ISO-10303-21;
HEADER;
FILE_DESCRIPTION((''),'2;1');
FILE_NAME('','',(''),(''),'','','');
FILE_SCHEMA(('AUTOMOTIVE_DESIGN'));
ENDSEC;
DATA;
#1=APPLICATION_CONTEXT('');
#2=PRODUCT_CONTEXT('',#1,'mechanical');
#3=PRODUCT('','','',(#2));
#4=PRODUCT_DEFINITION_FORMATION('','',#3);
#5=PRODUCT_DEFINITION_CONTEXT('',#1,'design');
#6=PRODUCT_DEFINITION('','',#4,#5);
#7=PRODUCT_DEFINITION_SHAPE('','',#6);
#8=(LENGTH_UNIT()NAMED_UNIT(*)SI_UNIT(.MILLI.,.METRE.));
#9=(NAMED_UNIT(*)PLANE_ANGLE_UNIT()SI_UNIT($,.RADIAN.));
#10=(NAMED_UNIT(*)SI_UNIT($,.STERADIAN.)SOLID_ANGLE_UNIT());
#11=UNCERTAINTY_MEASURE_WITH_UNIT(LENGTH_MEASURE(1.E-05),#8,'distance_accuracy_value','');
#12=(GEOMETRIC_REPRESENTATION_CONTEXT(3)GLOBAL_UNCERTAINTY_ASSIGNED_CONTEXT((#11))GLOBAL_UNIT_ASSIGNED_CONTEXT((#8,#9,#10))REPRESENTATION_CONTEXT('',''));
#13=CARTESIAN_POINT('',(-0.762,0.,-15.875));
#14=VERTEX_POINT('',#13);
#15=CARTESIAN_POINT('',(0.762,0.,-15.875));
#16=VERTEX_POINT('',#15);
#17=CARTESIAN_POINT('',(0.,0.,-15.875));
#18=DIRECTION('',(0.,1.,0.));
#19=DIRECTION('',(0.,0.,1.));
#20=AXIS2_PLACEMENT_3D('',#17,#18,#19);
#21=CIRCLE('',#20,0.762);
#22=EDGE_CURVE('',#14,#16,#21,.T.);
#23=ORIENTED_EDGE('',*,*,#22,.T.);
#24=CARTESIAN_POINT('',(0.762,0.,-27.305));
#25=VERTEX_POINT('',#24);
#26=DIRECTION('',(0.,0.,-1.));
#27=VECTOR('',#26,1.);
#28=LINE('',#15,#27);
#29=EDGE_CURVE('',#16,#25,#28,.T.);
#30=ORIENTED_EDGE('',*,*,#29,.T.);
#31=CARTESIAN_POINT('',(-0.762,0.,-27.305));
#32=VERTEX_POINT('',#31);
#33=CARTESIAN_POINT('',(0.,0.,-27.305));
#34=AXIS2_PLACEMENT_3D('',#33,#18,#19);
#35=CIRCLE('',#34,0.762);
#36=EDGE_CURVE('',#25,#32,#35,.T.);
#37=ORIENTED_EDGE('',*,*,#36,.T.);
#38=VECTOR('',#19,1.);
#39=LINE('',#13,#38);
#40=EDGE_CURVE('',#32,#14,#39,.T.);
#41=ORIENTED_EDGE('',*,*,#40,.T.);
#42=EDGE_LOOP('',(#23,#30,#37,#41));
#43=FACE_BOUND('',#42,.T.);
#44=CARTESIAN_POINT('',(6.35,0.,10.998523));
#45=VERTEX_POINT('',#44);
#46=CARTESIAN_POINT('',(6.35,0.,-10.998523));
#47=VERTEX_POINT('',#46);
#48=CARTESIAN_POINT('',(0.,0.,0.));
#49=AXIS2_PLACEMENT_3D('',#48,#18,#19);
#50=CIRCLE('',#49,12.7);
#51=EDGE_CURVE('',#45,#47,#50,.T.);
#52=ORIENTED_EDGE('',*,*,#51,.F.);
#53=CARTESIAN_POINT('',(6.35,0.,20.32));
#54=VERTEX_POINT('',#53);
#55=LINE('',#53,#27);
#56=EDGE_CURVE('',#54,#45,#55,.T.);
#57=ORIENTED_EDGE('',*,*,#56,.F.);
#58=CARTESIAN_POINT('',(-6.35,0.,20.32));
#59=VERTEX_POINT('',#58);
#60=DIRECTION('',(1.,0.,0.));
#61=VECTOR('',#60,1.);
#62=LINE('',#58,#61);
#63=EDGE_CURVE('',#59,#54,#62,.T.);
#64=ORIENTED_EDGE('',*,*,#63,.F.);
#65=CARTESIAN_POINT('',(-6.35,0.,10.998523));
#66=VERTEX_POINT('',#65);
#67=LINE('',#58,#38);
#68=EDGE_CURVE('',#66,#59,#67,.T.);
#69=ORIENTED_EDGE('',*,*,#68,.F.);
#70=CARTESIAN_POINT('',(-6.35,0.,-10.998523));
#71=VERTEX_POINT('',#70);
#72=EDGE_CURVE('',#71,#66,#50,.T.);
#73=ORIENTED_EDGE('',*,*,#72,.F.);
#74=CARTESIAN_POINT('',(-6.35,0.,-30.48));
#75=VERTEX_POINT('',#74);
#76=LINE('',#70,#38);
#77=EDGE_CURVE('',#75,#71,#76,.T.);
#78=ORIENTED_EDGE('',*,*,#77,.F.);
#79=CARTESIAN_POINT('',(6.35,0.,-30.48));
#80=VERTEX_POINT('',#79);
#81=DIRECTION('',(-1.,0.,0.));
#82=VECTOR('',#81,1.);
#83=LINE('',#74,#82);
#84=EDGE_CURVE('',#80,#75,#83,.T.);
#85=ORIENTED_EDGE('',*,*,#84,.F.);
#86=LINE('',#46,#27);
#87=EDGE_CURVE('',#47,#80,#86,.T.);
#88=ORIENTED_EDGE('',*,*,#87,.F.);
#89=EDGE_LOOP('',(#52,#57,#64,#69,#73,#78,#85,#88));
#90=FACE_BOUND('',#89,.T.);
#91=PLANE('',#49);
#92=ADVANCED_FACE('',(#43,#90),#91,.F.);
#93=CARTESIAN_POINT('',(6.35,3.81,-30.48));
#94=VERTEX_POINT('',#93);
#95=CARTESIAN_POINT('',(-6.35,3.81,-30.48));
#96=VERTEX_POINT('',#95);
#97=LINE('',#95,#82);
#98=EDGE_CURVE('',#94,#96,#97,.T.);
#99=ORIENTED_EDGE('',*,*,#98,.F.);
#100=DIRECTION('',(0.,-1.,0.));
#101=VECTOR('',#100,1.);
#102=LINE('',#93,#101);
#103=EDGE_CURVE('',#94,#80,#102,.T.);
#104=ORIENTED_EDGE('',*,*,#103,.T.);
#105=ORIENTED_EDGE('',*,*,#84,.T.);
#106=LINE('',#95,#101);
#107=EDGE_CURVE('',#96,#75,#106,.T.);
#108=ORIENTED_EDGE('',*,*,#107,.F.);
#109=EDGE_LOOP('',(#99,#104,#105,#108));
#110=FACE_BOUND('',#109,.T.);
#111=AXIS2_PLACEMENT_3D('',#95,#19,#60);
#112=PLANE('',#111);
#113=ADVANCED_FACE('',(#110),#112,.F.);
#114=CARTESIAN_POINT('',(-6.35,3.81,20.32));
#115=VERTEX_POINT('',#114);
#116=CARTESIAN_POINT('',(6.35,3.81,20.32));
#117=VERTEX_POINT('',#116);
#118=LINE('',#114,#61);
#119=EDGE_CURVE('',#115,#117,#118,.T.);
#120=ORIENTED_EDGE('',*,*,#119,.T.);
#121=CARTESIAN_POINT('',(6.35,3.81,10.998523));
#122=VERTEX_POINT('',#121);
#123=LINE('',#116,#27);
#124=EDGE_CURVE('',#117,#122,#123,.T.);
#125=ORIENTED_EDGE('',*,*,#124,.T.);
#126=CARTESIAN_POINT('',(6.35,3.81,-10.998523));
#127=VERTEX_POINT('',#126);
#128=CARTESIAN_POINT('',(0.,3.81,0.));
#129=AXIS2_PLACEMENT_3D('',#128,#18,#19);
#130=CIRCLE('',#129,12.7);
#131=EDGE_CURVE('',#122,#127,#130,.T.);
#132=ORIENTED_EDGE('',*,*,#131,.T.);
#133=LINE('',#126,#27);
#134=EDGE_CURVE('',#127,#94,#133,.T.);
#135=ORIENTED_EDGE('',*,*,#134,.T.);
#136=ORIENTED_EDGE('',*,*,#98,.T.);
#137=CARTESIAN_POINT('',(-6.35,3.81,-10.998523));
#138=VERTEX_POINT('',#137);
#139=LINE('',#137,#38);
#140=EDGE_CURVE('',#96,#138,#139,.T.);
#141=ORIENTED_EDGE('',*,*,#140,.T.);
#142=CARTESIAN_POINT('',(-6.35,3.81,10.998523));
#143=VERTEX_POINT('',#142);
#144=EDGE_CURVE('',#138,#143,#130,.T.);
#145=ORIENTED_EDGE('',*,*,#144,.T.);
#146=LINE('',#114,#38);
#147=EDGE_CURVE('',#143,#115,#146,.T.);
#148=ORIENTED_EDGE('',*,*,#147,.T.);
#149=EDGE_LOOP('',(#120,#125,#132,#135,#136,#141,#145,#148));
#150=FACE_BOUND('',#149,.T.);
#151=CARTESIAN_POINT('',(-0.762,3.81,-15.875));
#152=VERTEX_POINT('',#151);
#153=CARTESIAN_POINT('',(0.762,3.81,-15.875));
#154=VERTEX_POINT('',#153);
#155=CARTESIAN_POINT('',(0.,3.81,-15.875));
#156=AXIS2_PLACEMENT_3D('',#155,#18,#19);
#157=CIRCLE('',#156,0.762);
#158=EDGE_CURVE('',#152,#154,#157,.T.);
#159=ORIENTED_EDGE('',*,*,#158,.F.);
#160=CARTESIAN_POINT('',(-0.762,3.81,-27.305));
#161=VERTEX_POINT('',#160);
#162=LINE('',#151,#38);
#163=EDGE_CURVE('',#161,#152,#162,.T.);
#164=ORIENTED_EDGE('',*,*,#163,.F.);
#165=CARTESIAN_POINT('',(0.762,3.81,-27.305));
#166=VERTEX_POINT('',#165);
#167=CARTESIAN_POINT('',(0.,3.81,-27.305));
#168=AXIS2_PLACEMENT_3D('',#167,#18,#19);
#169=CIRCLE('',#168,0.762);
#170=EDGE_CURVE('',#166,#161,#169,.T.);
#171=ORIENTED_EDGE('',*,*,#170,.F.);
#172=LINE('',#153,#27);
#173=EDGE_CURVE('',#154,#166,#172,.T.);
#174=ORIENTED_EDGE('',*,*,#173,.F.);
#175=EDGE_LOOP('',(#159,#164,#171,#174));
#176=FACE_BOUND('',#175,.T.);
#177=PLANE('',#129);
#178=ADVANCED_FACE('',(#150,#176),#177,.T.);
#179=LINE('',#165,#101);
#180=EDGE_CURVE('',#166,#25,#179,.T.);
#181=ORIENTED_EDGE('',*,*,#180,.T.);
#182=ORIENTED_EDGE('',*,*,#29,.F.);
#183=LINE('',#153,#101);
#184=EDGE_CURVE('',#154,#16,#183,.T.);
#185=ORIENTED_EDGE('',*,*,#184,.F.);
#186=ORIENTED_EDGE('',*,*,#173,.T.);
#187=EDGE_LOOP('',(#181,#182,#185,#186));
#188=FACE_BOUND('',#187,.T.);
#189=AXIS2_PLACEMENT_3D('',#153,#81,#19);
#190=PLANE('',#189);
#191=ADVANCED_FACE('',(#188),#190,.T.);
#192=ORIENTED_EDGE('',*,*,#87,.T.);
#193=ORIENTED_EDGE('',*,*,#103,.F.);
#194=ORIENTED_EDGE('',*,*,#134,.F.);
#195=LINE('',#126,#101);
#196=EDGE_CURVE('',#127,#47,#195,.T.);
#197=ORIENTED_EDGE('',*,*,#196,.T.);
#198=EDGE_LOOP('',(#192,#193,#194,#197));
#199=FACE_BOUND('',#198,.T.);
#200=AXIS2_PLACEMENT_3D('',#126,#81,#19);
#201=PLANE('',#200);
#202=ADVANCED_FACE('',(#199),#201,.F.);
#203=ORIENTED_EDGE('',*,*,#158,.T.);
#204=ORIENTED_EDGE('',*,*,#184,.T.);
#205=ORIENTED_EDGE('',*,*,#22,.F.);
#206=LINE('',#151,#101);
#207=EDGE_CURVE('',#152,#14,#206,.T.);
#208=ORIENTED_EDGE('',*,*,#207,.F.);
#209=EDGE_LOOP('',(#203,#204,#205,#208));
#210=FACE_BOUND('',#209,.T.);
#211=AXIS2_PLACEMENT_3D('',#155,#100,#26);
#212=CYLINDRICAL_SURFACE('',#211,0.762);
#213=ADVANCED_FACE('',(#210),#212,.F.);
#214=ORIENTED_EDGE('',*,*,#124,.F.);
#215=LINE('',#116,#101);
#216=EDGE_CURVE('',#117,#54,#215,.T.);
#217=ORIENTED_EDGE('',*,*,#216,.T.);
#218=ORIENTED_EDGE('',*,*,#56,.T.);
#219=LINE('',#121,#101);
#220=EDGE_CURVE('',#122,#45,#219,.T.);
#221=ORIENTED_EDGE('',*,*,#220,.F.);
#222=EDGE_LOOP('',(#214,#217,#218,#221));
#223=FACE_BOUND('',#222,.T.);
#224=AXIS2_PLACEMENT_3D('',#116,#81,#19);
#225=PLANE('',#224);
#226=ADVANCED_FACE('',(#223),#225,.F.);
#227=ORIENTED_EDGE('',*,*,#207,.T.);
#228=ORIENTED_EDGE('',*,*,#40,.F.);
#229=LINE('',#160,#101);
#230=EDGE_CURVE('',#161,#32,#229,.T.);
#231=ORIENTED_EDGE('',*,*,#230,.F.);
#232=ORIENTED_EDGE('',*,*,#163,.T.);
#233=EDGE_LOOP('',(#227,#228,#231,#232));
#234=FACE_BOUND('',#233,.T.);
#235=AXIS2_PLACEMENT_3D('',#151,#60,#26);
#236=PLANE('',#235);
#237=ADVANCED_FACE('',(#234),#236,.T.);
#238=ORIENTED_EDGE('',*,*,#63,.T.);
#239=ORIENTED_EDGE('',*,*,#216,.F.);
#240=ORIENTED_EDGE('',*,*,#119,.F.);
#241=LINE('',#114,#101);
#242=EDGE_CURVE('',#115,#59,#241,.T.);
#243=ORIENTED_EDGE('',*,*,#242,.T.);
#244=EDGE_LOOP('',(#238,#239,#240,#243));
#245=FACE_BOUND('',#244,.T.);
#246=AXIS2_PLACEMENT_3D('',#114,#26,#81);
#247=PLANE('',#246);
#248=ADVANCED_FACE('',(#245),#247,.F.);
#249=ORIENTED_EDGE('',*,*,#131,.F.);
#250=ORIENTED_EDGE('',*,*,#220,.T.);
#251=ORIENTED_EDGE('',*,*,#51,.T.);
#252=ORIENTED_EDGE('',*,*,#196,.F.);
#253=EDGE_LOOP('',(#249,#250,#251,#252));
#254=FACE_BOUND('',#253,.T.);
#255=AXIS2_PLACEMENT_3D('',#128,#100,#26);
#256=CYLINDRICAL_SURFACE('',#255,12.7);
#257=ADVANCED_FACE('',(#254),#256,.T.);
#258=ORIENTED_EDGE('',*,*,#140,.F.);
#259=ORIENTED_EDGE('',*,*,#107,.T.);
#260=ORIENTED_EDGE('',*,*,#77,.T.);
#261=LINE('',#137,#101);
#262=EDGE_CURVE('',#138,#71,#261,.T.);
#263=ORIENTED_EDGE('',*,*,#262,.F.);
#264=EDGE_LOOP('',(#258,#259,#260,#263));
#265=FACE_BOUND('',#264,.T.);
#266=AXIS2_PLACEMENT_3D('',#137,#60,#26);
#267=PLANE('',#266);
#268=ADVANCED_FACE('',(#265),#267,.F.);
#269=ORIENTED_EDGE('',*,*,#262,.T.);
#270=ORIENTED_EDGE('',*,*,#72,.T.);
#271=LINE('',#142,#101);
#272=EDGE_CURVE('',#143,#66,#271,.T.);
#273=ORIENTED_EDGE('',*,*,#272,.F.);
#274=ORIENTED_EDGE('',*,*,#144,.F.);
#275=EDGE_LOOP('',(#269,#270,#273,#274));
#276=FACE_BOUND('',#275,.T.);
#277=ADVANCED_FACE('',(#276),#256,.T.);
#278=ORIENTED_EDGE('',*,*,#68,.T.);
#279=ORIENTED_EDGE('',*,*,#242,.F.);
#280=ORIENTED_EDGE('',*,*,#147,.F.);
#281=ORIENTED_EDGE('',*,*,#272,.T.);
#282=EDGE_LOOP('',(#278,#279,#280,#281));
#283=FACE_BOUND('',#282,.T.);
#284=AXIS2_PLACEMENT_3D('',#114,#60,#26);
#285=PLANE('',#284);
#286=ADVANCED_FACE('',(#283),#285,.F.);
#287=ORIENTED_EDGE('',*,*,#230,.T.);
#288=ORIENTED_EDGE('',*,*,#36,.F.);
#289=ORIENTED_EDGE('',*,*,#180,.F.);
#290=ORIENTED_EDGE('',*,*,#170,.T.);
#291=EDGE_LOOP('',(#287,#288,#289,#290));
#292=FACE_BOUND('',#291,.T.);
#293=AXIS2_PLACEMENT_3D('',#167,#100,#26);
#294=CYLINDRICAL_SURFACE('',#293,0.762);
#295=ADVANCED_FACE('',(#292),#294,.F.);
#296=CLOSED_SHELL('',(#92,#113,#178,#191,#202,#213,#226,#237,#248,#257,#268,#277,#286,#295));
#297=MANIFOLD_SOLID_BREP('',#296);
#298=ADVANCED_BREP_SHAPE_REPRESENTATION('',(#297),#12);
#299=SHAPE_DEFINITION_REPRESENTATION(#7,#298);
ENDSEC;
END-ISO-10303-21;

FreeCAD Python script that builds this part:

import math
import FreeCAD as App
import Part
import Sketcher

V = App.Vector
Q = App.Units.Quantity

doc = App.newDocument("Part")
params = doc.addObject("Spreadsheet::Sheet", "Params")
for row, (alias, value) in enumerate([
    ("sketch1_radius", "0.5 in"),
    ("sketch1_radius2", "0.03 in"),
    ("sketch1_width", "0.5 in"),
    ("sketch1_height", "0.45 in"),
    ("pad1_length", "0.15 in"),
], start=1):
    params.set(f"A{row}", alias)
    params.set(f"B{row}", "=" + value)
    params.setAlias(f"B{row}", alias)

body = doc.addObject("PartDesign::Body", "Body")

sketch1 = body.newObject("Sketcher::SketchObject", "Sketch")
sketch1.AttachmentSupport = (doc.getObject("XZ_Plane"), [""])
sketch1.MapMode = "FlatFace"
sketch1.addGeometry(Part.LineSegment(V(6.3, -11, 0), V(6.3, -30.5, 0)), False)
sketch1.addGeometry(Part.LineSegment(V(6.3, -30.5, 0), V(-6.3, -30.5, 0)), False)
sketch1.addGeometry(Part.LineSegment(V(-6.3, -30.5, 0), V(-6.3, -11, 0)), False)
sketch1.addGeometry(Part.ArcOfCircle(Part.Circle(V(0, 0, 0), V(0, 0, 1), 12.7), math.radians(120), math.radians(240)), False)
sketch1.addGeometry(Part.LineSegment(V(-6.3, 11, 0), V(-6.3, 20.3, 0)), False)
sketch1.addGeometry(Part.LineSegment(V(-6.3, 20.3, 0), V(6.3, 20.3, 0)), False)
sketch1.addGeometry(Part.LineSegment(V(6.3, 20.3, 0), V(6.3, 11, 0)), False)
sketch1.addGeometry(Part.ArcOfCircle(Part.Circle(V(0, 0, 0), V(0, 0, 1), 12.7), math.radians(-60), math.radians(60)), False)
sketch1.addGeometry(Part.ArcOfCircle(Part.Circle(V(0, -15.9, 0), V(0, 0, 1), 0.8), math.radians(0), math.radians(180)), False)
sketch1.addGeometry(Part.LineSegment(V(-0.8, -15.9, 0), V(-0.8, -27.3, 0)), False)
sketch1.addGeometry(Part.ArcOfCircle(Part.Circle(V(0, -27.3, 0), V(0, 0, 1), 0.8), math.radians(180), math.radians(360)), False)
sketch1.addGeometry(Part.LineSegment(V(0.8, -27.3, 0), V(0.8, -15.9, 0)), False)
sketch1.addConstraint(Sketcher.Constraint("Coincident", 0, 2, 1, 1))
sketch1.addConstraint(Sketcher.Constraint("Coincident", 1, 2, 2, 1))
sketch1.addConstraint(Sketcher.Constraint("Coincident", 2, 2, 3, 2))
sketch1.addConstraint(Sketcher.Constraint("Coincident", 3, 1, 4, 1))
sketch1.addConstraint(Sketcher.Constraint("Coincident", 4, 2, 5, 1))
sketch1.addConstraint(Sketcher.Constraint("Coincident", 5, 2, 6, 1))
sketch1.addConstraint(Sketcher.Constraint("Coincident", 6, 2, 7, 2))
sketch1.addConstraint(Sketcher.Constraint("Coincident", 7, 1, 0, 1))
sketch1.addConstraint(Sketcher.Constraint("Tangent", 8, 2, 9, 1))
sketch1.addConstraint(Sketcher.Constraint("Tangent", 9, 2, 10, 1))
sketch1.addConstraint(Sketcher.Constraint("Tangent", 10, 2, 11, 1))
sketch1.addConstraint(Sketcher.Constraint("Tangent", 11, 2, 8, 1))
sketch1.addConstraint(Sketcher.Constraint("Vertical", 0))
sketch1.addConstraint(Sketcher.Constraint("Horizontal", 1))
sketch1.addConstraint(Sketcher.Constraint("Vertical", 2))
sketch1.addConstraint(Sketcher.Constraint("Vertical", 4))
sketch1.addConstraint(Sketcher.Constraint("Horizontal", 5))
sketch1.addConstraint(Sketcher.Constraint("Vertical", 6))
sketch1.addConstraint(Sketcher.Constraint("Vertical", 9))
sketch1.addConstraint(Sketcher.Constraint("Vertical", 11))
sketch1.addConstraint(Sketcher.Constraint("Coincident", 3, 3, -1, 1))
sketch1.addConstraint(Sketcher.Constraint("Coincident", 7, 3, -1, 1))
sketch1.addConstraint(Sketcher.Constraint("Equal", 3, 7))
sketch1.addConstraint(Sketcher.Constraint("PointOnObject", 8, 3, -2))
sketch1.addConstraint(Sketcher.Constraint("Horizontal", 3, 1, 6, 2))
sketch1.addConstraint(Sketcher.Constraint("Horizontal", 2, 2, 7, 1))
sketch1.addConstraint(Sketcher.Constraint("Vertical", 2, 2, 3, 1))
sketch1.addConstraint(Sketcher.Constraint("Radius", 3, Q("0.5 in")))
sketch1.addConstraint(Sketcher.Constraint("Radius", 8, Q("0.03 in")))
sketch1.addConstraint(Sketcher.Constraint("DistanceX", 1, 2, 1, 1, Q("0.5 in")))
sketch1.addConstraint(Sketcher.Constraint("DistanceY", 9, 2, 9, 1, Q("0.45 in")))
sketch1.addConstraint(Sketcher.Constraint("DistanceY", 0, 2, -1, 1, Q("1.2 in")))
sketch1.addConstraint(Sketcher.Constraint("DistanceY", -1, 1, 4, 2, Q("0.8 in")))
sketch1.addConstraint(Sketcher.Constraint("DistanceY", 8, 3, -1, 1, Q("0.625 in")))
sketch1.setExpression("Constraints[27]", "Params.sketch1_radius")
sketch1.setExpression("Constraints[28]", "Params.sketch1_radius2")
sketch1.setExpression("Constraints[29]", "Params.sketch1_width")
sketch1.setExpression("Constraints[30]", "Params.sketch1_height")
pad1 = body.newObject("PartDesign::Pad", "Pad")
pad1.Profile = sketch1
pad1.setExpression("Length", "Params.pad1_length")
pad1.Reversed = True

doc.recompute()
